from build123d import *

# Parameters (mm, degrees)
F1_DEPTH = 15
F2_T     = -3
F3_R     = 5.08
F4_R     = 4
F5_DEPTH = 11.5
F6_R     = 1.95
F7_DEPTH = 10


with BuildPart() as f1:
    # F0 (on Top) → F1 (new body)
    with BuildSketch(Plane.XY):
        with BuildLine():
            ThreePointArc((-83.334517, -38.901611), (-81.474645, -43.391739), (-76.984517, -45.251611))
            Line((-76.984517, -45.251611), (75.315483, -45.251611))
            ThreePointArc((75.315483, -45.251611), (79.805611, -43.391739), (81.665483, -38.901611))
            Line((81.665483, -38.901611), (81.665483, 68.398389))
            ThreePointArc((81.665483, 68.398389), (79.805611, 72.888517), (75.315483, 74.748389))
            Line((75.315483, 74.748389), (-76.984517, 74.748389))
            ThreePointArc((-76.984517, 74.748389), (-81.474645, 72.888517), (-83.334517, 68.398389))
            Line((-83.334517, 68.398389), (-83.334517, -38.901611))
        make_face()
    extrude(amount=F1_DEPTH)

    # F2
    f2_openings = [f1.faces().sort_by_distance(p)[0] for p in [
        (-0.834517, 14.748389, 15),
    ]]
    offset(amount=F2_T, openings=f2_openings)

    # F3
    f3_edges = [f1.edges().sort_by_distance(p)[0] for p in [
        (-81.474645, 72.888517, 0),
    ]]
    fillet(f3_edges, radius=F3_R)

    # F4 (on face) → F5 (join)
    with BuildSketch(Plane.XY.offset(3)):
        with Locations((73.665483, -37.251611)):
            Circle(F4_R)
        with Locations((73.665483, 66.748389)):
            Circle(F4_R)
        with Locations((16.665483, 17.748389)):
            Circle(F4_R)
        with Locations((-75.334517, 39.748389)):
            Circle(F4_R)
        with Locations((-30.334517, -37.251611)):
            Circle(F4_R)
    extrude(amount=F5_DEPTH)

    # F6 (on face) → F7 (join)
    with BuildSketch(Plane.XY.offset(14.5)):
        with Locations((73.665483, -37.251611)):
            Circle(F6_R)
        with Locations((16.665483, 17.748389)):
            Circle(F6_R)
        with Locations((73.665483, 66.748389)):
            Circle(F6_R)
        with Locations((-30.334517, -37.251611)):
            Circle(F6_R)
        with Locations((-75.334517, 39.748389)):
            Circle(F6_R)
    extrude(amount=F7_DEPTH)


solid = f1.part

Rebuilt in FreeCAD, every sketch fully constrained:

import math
import FreeCAD as App
import Part
import Sketcher
from FreeCAD import Vector
Q = App.Units.Quantity


def edges_at(feature, points):
    """Names of the edges that pass closest to the given points."""
    edges = feature.Shape.Edges
    near = lambda p: min(range(len(edges)), key=lambda i: edges[i].distToShape(Part.Vertex(*p))[0])
    return sorted({f"Edge{near(p) + 1}" for p in points})


def faces_at(feature, points):
    """Names of the faces that lie closest to the given points."""
    faces = feature.Shape.Faces
    near = lambda p: min(range(len(faces)), key=lambda i: faces[i].distToShape(Part.Vertex(*p))[0])
    return sorted({f"Face{near(p) + 1}" for p in points})

doc = App.newDocument("Part")
body = doc.addObject("PartDesign::Body", "Body")

sketch1 = body.newObject("Sketcher::SketchObject", "Sketch")
sketch1.AttachmentSupport = (doc.getObject("XY_Plane"), [""])
sketch1.MapMode = "FlatFace"
sketch1.addGeometry(Part.ArcOfCircle(Part.Circle(Vector(-77, -39, 0), Vector(0, 0, 1), 6), math.radians(-180), math.radians(-90)), False)
sketch1.addGeometry(Part.LineSegment(Vector(-77, -45, 0), Vector(75, -45, 0)), False)
sketch1.addGeometry(Part.ArcOfCircle(Part.Circle(Vector(75, -39, 0), Vector(0, 0, 1), 6), math.radians(-90), math.radians(0)), False)
sketch1.addGeometry(Part.LineSegment(Vector(82, -39, 0), Vector(82, 68, 0)), False)
sketch1.addGeometry(Part.ArcOfCircle(Part.Circle(Vector(75, 68, 0), Vector(0, 0, 1), 6), math.radians(0), math.radians(90)), False)
sketch1.addGeometry(Part.LineSegment(Vector(75, 75, 0), Vector(-77, 75, 0)), False)
sketch1.addGeometry(Part.ArcOfCircle(Part.Circle(Vector(-77, 68, 0), Vector(0, 0, 1), 6), math.radians(90), math.radians(180)), False)
sketch1.addGeometry(Part.LineSegment(Vector(-83, 68, 0), Vector(-83, -39, 0)), False)
sketch1.addConstraint(Sketcher.Constraint("Tangent", 0, 2, 1, 1))
sketch1.addConstraint(Sketcher.Constraint("Tangent", 1, 2, 2, 1))
sketch1.addConstraint(Sketcher.Constraint("Tangent", 2, 2, 3, 1))
sketch1.addConstraint(Sketcher.Constraint("Tangent", 3, 2, 4, 1))
sketch1.addConstraint(Sketcher.Constraint("Tangent", 4, 2, 5, 1))
sketch1.addConstraint(Sketcher.Constraint("Tangent", 5, 2, 6, 1))
sketch1.addConstraint(Sketcher.Constraint("Tangent", 6, 2, 7, 1))
sketch1.addConstraint(Sketcher.Constraint("Tangent", 7, 2, 0, 1))
sketch1.addConstraint(Sketcher.Constraint("Horizontal", 1))
sketch1.addConstraint(Sketcher.Constraint("Vertical", 3))
sketch1.addConstraint(Sketcher.Constraint("Horizontal", 5))
sketch1.addConstraint(Sketcher.Constraint("Vertical", 7))
sketch1.addConstraint(Sketcher.Constraint("Equal", 0, 2))
sketch1.addConstraint(Sketcher.Constraint("Equal", 2, 4))
sketch1.addConstraint(Sketcher.Constraint("Equal", 4, 6))
sketch1.addConstraint(Sketcher.Constraint("Radius", 0, Q("6.35 mm")))
sketch1.addConstraint(Sketcher.Constraint("DistanceX", 1, 1, 1, 2, Q("152.3 mm")))
sketch1.addConstraint(Sketcher.Constraint("DistanceY", 3, 1, 3, 2, Q("107.3 mm")))
sketch1.addConstraint(Sketcher.Constraint("DistanceY", 0, 3, -1, 1, Q("38.901611 mm")))
sketch1.addConstraint(Sketcher.Constraint("DistanceX", 0, 3, -1, 1, Q("76.984517 mm")))
pad1 = body.newObject("PartDesign::Pad", "Pad")
pad1.Profile = sketch1
pad1.Length = 15
doc.recompute()

thickness = body.newObject("PartDesign::Thickness", "Thickness")
thickness.Base = (pad1, faces_at(pad1, [(-0.835, 14.748, 15)]))
thickness.Value = 3
thickness.Reversed = True
thickness.Join = "Arc"
doc.recompute()

fillet = body.newObject("PartDesign::Fillet", "Fillet")
fillet.Base = (thickness, edges_at(thickness, [(-81.475, 72.889, 0)]))
fillet.Radius = 5.08

sketch2 = body.newObject("Sketcher::SketchObject", "Sketch001")
sketch2.AttachmentSupport = (doc.getObject("XY_Plane"), [""])
sketch2.MapMode = "FlatFace"
sketch2.AttachmentOffset = App.Placement(Vector(0, 0, 3), App.Rotation())
sketch2.addGeometry(Part.Circle(Vector(73.7, -37.3, 0), Vector(0, 0, 1), 4), False)
sketch2.addGeometry(Part.Circle(Vector(73.7, 66.7, 0), Vector(0, 0, 1), 4), False)
sketch2.addGeometry(Part.Circle(Vector(16.7, 17.7, 0), Vector(0, 0, 1), 4), False)
sketch2.addGeometry(Part.Circle(Vector(-75.3, 39.7, 0), Vector(0, 0, 1), 4), False)
sketch2.addGeometry(Part.Circle(Vector(-30.3, -37.3, 0), Vector(0, 0, 1), 4), False)
sketch2.addConstraint(Sketcher.Constraint("Equal", 0, 1))
sketch2.addConstraint(Sketcher.Constraint("Equal", 1, 2))
sketch2.addConstraint(Sketcher.Constraint("Equal", 2, 3))
sketch2.addConstraint(Sketcher.Constraint("Equal", 3, 4))
sketch2.addConstraint(Sketcher.Constraint("Horizontal", 0, 3, 4, 3))
sketch2.addConstraint(Sketcher.Constraint("Vertical", 0, 3, 1, 3))
sketch2.addConstraint(Sketcher.Constraint("Diameter", 0, Q("8 mm")))
sketch2.addConstraint(Sketcher.Constraint("DistanceY", 0, 3, 1, 3, Q("104 mm")))
sketch2.addConstraint(Sketcher.Constraint("DistanceX", 2, 3, 1, 3, Q("57 mm")))
sketch2.addConstraint(Sketcher.Constraint("DistanceY", 2, 3, 1, 3, Q("49 mm")))
sketch2.addConstraint(Sketcher.Constraint("DistanceX", 3, 3, 2, 3, Q("92 mm")))
sketch2.addConstraint(Sketcher.Constraint("DistanceY", 2, 3, 3, 3, Q("22 mm")))
sketch2.addConstraint(Sketcher.Constraint("DistanceX", 4, 3, 2, 3, Q("47 mm")))
sketch2.addConstraint(Sketcher.Constraint("DistanceY", 0, 3, -1, 1, Q("37.251611 mm")))
sketch2.addConstraint(Sketcher.Constraint("DistanceX", -1, 1, 0, 3, Q("73.665483 mm")))
pad2 = body.newObject("PartDesign::Pad", "Pad001")
pad2.Profile = sketch2
pad2.Length = 11.5

sketch3 = body.newObject("Sketcher::SketchObject", "Sketch002")
sketch3.AttachmentSupport = (doc.getObject("XY_Plane"), [""])
sketch3.MapMode = "FlatFace"
sketch3.AttachmentOffset = App.Placement(Vector(0, 0, 14.5), App.Rotation())
sketch3.addGeometry(Part.Circle(Vector(73.7, -37.3, 0), Vector(0, 0, 1), 1.9), False)
sketch3.addGeometry(Part.Circle(Vector(16.7, 17.7, 0), Vector(0, 0, 1), 1.9), False)
sketch3.addGeometry(Part.Circle(Vector(73.7, 66.7, 0), Vector(0, 0, 1), 1.9), False)
sketch3.addGeometry(Part.Circle(Vector(-30.3, -37.3, 0), Vector(0, 0, 1), 1.9), False)
sketch3.addGeometry(Part.Circle(Vector(-75.3, 39.7, 0), Vector(0, 0, 1), 1.9), False)
sketch3.addConstraint(Sketcher.Constraint("Equal", 0, 1))
sketch3.addConstraint(Sketcher.Constraint("Equal", 1, 2))
sketch3.addConstraint(Sketcher.Constraint("Equal", 2, 3))
sketch3.addConstraint(Sketcher.Constraint("Equal", 3, 4))
sketch3.addConstraint(Sketcher.Constraint("Horizontal", 0, 3, 3, 3))
sketch3.addConstraint(Sketcher.Constraint("Vertical", 0, 3, 2, 3))
sketch3.addConstraint(Sketcher.Constraint("Diameter", 0, Q("3.9 mm")))
sketch3.addConstraint(Sketcher.Constraint("DistanceX", 1, 3, 0, 3, Q("57 mm")))
sketch3.addConstraint(Sketcher.Constraint("DistanceY", 0, 3, 1, 3, Q("55 mm")))
sketch3.addConstraint(Sketcher.Constraint("DistanceY", 1, 3, 2, 3, Q("49 mm")))
sketch3.addConstraint(Sketcher.Constraint("DistanceX", 3, 3, 1, 3, Q("47 mm")))
sketch3.addConstraint(Sketcher.Constraint("DistanceX", 4, 3, 3, 3, Q("45 mm")))
sketch3.addConstraint(Sketcher.Constraint("DistanceY", 3, 3, 4, 3, Q("77 mm")))
sketch3.addConstraint(Sketcher.Constraint("DistanceY", 0, 3, -1, 1, Q("37.251611 mm")))
sketch3.addConstraint(Sketcher.Constraint("DistanceX", -1, 1, 0, 3, Q("73.665483 mm")))
pad3 = body.newObject("PartDesign::Pad", "Pad002")
pad3.Profile = sketch3
pad3.Length = 10

doc.recompute()
